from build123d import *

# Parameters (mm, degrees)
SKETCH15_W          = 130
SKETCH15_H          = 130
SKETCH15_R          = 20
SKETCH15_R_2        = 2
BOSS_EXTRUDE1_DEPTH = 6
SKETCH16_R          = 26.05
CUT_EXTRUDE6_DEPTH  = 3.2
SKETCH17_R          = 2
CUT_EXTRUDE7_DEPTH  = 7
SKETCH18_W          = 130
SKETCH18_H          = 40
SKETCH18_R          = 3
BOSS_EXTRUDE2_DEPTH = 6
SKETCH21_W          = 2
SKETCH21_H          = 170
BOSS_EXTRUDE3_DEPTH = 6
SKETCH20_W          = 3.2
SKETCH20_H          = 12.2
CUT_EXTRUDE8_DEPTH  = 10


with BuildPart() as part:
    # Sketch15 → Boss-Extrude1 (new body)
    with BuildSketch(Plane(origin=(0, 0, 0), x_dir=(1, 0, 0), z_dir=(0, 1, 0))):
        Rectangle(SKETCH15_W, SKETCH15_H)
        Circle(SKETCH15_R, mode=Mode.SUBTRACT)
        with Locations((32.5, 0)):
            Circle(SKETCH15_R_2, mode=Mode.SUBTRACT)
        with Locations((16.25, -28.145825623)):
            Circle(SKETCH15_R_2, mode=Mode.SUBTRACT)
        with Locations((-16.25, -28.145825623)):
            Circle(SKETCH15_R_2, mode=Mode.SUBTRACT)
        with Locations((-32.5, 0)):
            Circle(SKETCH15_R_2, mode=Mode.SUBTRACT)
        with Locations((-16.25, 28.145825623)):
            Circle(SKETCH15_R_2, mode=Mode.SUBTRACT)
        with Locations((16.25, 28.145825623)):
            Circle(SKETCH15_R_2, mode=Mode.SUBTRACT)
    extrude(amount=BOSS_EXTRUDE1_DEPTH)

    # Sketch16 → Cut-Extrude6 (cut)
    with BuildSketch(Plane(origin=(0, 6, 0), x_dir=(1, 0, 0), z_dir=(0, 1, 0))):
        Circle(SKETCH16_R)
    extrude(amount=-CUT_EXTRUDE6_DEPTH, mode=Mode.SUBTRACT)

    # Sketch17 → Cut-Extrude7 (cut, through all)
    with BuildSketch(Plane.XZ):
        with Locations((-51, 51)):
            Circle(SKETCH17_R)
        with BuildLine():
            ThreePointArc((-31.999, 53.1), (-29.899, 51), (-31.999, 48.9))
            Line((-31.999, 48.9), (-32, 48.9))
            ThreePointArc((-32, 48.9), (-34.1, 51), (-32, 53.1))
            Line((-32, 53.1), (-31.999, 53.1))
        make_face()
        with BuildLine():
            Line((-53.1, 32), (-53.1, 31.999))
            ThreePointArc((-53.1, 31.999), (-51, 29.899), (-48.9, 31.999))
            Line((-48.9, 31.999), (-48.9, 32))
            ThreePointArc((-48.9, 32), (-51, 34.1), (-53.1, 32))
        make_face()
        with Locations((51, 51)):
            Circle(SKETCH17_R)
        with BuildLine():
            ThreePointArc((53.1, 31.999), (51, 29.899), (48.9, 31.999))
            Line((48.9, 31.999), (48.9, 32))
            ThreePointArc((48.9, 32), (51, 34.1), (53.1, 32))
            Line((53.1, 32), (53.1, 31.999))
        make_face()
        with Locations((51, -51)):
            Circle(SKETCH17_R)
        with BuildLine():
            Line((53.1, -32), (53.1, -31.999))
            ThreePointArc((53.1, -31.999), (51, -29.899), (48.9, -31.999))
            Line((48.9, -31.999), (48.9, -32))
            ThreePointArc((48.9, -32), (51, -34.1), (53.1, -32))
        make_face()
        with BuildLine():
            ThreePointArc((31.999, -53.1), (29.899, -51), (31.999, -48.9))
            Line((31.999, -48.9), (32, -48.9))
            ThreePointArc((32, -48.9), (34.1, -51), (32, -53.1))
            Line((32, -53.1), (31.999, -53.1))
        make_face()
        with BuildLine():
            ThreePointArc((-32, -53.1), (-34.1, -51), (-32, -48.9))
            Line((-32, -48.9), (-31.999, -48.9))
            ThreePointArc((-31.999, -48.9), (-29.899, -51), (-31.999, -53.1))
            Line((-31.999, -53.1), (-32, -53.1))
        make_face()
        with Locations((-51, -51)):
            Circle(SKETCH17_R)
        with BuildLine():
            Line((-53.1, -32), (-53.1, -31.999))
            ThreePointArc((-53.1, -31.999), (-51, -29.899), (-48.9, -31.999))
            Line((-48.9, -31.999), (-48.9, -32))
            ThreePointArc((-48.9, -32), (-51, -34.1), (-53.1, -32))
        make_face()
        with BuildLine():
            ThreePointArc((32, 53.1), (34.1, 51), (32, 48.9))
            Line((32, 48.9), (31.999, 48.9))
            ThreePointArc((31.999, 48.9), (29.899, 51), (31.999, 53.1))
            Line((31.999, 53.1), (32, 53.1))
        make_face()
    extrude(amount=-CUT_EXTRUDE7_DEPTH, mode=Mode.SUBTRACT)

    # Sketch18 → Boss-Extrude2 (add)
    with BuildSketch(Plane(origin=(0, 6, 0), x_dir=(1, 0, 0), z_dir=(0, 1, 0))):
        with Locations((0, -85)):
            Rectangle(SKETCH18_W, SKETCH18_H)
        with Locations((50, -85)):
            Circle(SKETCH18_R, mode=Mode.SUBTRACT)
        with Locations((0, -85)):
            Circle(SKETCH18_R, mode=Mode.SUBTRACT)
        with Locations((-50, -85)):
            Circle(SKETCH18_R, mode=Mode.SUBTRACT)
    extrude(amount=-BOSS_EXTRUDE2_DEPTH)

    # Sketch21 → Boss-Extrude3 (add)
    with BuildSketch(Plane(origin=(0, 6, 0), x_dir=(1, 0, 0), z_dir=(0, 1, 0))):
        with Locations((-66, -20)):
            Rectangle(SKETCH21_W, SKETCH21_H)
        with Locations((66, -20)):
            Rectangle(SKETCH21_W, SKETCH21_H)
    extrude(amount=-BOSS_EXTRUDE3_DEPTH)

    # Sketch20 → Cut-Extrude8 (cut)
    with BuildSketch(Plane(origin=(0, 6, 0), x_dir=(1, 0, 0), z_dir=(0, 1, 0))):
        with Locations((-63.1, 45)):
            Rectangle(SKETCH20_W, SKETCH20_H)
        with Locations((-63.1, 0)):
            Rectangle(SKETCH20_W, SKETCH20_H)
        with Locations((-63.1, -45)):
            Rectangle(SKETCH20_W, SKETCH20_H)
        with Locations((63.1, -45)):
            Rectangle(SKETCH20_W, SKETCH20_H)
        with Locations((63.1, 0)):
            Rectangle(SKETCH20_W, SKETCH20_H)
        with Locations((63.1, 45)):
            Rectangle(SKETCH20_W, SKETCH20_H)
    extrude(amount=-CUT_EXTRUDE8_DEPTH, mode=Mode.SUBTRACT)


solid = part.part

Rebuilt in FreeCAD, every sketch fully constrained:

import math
import FreeCAD as App
import Part
import Sketcher
from FreeCAD import Vector
Q = App.Units.Quantity

doc = App.newDocument("Part")
params = doc.addObject("Spreadsheet::Sheet", "Params")
for row, (alias, value) in enumerate([
    ("sketch1_diameter", "4 mm"),
    ("sketch1_diameter2", "40 mm"),
    ("sketch1_width", "130 mm"),
    ("pad1_length", "6 mm"),
    ("sketch2_diameter", "52.1 mm"),
    ("pocket1_length", "3.2 mm"),
    ("sketch3_diameter", "4 mm"),
    ("sketch3_radius", "2.1 mm"),
    ("sketch4_diameter", "6 mm"),
    ("sketch4_width", "130 mm"),
    ("sketch4_height", "40 mm"),
    ("pad2_length", "6 mm"),
    ("sketch5_width", "2 mm"),
    ("sketch5_height", "170 mm"),
    ("pad3_length", "6 mm"),
    ("sketch6_width", "3.2 mm"),
    ("sketch6_height", "12.2 mm"),
    ("pocket3_length", "10 mm"),
], start=1):
    params.set(f"A{row}", alias)
    params.set(f"B{row}", "=" + value)
    params.setAlias(f"B{row}", alias)

body = doc.addObject("PartDesign::Body", "Body")

# Sketch on XZ plane
sketch1 = doc.addObject("Sketcher::SketchObject", "Sketch")
body.addObject(sketch1)
sketch1.AttachmentSupport = (doc.XZ_Plane, [""])
sketch1.MapMode = "FlatFace"
sketch1.addGeometry([
    Part.LineSegment(Vector(-65, -65, 0), Vector(-65, 65, 0)),  # 0
    Part.LineSegment(Vector(-65, 65, 0), Vector(65, 65, 0)),  # 1
    Part.LineSegment(Vector(65, 65, 0), Vector(65, -65, 0)),  # 2
    Part.LineSegment(Vector(65, -65, 0), Vector(-65, -65, 0)),  # 3
    Part.Circle(Vector(-16.2, 28.1, 0), Vector(0, 0, 1), 2),  # 4
    Part.Circle(Vector(16.2, 28.1, 0), Vector(0, 0, 1), 2),  # 5
    Part.Circle(Vector(-32.5, 0, 0), Vector(0, 0, 1), 2),  # 6
    Part.Circle(Vector(-16.2, -28.1, 0), Vector(0, 0, 1), 2),  # 7
    Part.Circle(Vector(0, 0, 0), Vector(0, 0, 1), 20),  # 8
    Part.Circle(Vector(32.5, 0, 0), Vector(0, 0, 1), 2),  # 9
    Part.Circle(Vector(16.2, -28.1, 0), Vector(0, 0, 1), 2),  # 10
], False)
sketch1.addConstraint([
    Sketcher.Constraint("Coincident", 0, 2, 1, 1),
    Sketcher.Constraint("Coincident", 1, 2, 2, 1),
    Sketcher.Constraint("Coincident", 2, 2, 3, 1),
    Sketcher.Constraint("Coincident", 3, 2, 0, 1),
    Sketcher.Constraint("Vertical", 0),
    Sketcher.Constraint("Horizontal", 1),
    Sketcher.Constraint("Vertical", 2),
    Sketcher.Constraint("Horizontal", 3),
    Sketcher.Constraint("Coincident", 8, 3, -1, 1),
    Sketcher.Constraint("Equal", 4, 5),
    Sketcher.Constraint("Equal", 5, 6),
    Sketcher.Constraint("Equal", 6, 7),
    Sketcher.Constraint("Equal", 7, 9),
    Sketcher.Constraint("Equal", 9, 10),
    Sketcher.Constraint("Symmetric", 5, 3, 7, 3, -1, 1),
    Sketcher.Constraint("Symmetric", 6, 3, 9, 3, -1, 1),
    Sketcher.Constraint("Symmetric", 4, 3, 10, 3, -1, 1),
    Sketcher.Constraint("Symmetric", 0, 2, 2, 2, -1, 1),
    Sketcher.Constraint("Symmetric", 4, 3, 5, 3, -2),
    Sketcher.Constraint("PointOnObject", 6, 3, -1),
    Sketcher.Constraint("Equal", 3, 0),
    Sketcher.Constraint("Diameter", 4, Q("4 mm")),
    Sketcher.Constraint("Diameter", 8, Q("40 mm")),
    Sketcher.Constraint("DistanceX", 1, 1, 1, 2, Q("130 mm")),
    Sketcher.Constraint("DistanceX", 6, 3, 9, 3, Q("65 mm")),
    Sketcher.Constraint("DistanceX", 4, 3, 5, 3, Q("32.5 mm")),
    Sketcher.Constraint("DistanceY", 7, 3, 4, 3, Q("56.291651 mm")),
])
sketch1.setExpression("Constraints[21]", "Params.sketch1_diameter")
sketch1.setExpression("Constraints[22]", "Params.sketch1_diameter2")
sketch1.setExpression("Constraints[23]", "Params.sketch1_width")
pad1 = doc.addObject("PartDesign::Pad", "Pad")
body.addObject(pad1)
pad1.Profile = sketch1
pad1.setExpression("Length", "Params.pad1_length")
pad1.Reversed = True

# Sketch on XZ plane
sketch2 = doc.addObject("Sketcher::SketchObject", "Sketch001")
body.addObject(sketch2)
sketch2.AttachmentSupport = (doc.XZ_Plane, [""])
sketch2.MapMode = "FlatFace"
sketch2.AttachmentOffset = App.Placement(Vector(0, 0, -6), App.Rotation())
sketch2.addGeometry(Part.Circle(Vector(0, 0, 0), Vector(0, 0, 1), 26), False)
sketch2.addConstraint([
    Sketcher.Constraint("Coincident", 0, 3, -1, 1),
    Sketcher.Constraint("Diameter", 0, Q("52.1 mm")),
])
sketch2.setExpression("Constraints[1]", "Params.sketch2_diameter")
pocket1 = doc.addObject("PartDesign::Pocket", "Pocket")
body.addObject(pocket1)
pocket1.Profile = sketch2
pocket1.setExpression("Length", "Params.pocket1_length")
pocket1.Reversed = True

# Sketch on XZ plane
sketch3 = doc.addObject("Sketcher::SketchObject", "Sketch002")
body.addObject(sketch3)
sketch3.AttachmentSupport = (doc.XZ_Plane, [""])
sketch3.MapMode = "FlatFace"
sketch3.addGeometry([
    Part.Circle(Vector(-51, 51, 0), Vector(0, 0, 1), 2),  # 0
    Part.ArcOfCircle(Part.Circle(Vector(-31.999, 51, 0), Vector(0, 0, 1), 2.1), math.radians(-90), math.radians(90)),  # 1
    Part.LineSegment(Vector(-31.999, 53.1, 0), Vector(-32, 53.1, 0)),  # 2
    Part.ArcOfCircle(Part.Circle(Vector(-32, 51, 0), Vector(0, 0, 1), 2.1), math.radians(90), math.radians(270)),  # 3
    Part.LineSegment(Vector(-32, 48.9, 0), Vector(-31.999, 48.9, 0)),  # 4
    Part.LineSegment(Vector(-53.1, 32, 0), Vector(-53.1, 31.999, 0)),  # 5
    Part.ArcOfCircle(Part.Circle(Vector(-51, 31.999, 0), Vector(0, 0, 1), 2.1), math.radians(180), math.radians(360)),  # 6
    Part.LineSegment(Vector(-48.9, 31.999, 0), Vector(-48.9, 32, 0)),  # 7
    Part.ArcOfCircle(Part.Circle(Vector(-51, 32, 0), Vector(0, 0, 1), 2.1), math.radians(0), math.radians(180)),  # 8
    Part.Circle(Vector(51, 51, 0), Vector(0, 0, 1), 2),  # 9
    Part.ArcOfCircle(Part.Circle(Vector(51, 31.999, 0), Vector(0, 0, 1), 2.1), math.radians(180), math.radians(360)),  # 10
    Part.LineSegment(Vector(53.1, 31.999, 0), Vector(53.1, 32, 0)),  # 11
    Part.ArcOfCircle(Part.Circle(Vector(51, 32, 0), Vector(0, 0, 1), 2.1), math.radians(0), math.radians(180)),  # 12
    Part.LineSegment(Vector(48.9, 32, 0), Vector(48.9, 31.999, 0)),  # 13
    Part.Circle(Vector(51, -51, 0), Vector(0, 0, 1), 2),  # 14
    Part.LineSegment(Vector(53.1, -32, 0), Vector(53.1, -31.999, 0)),  # 15
    Part.ArcOfCircle(Part.Circle(Vector(51, -31.999, 0), Vector(0, 0, 1), 2.1), math.radians(0), math.radians(180)),  # 16
    Part.LineSegment(Vector(48.9, -31.999, 0), Vector(48.9, -32, 0)),  # 17
    Part.ArcOfCircle(Part.Circle(Vector(51, -32, 0), Vector(0, 0, 1), 2.1), math.radians(180), math.radians(360)),  # 18
    Part.ArcOfCircle(Part.Circle(Vector(31.999, -51, 0), Vector(0, 0, 1), 2.1), math.radians(90), math.radians(270)),  # 19
    Part.LineSegment(Vector(31.999, -53.1, 0), Vector(32, -53.1, 0)),  # 20
    Part.ArcOfCircle(Part.Circle(Vector(32, -51, 0), Vector(0, 0, 1), 2.1), math.radians(-90), math.radians(90)),  # 21
    Part.LineSegment(Vector(32, -48.9, 0), Vector(31.999, -48.9, 0)),  # 22
    Part.ArcOfCircle(Part.Circle(Vector(-32, -51, 0), Vector(0, 0, 1), 2.1), math.radians(90), math.radians(270)),  # 23
    Part.LineSegment(Vector(-32, -53.1, 0), Vector(-31.999, -53.1, 0)),  # 24
    Part.ArcOfCircle(Part.Circle(Vector(-31.999, -51, 0), Vector(0, 0, 1), 2.1), math.radians(-90), math.radians(90)),  # 25
    Part.LineSegment(Vector(-31.999, -48.9, 0), Vector(-32, -48.9, 0)),  # 26
    Part.Circle(Vector(-51, -51, 0), Vector(0, 0, 1), 2),  # 27
    Part.LineSegment(Vector(-53.1, -31.999, 0), Vector(-53.1, -32, 0)),  # 28
    Part.ArcOfCircle(Part.Circle(Vector(-51, -32, 0), Vector(0, 0, 1), 2.1), math.radians(180), math.radians(360)),  # 29
    Part.LineSegment(Vector(-48.9, -32, 0), Vector(-48.9, -31.999, 0)),  # 30
    Part.ArcOfCircle(Part.Circle(Vector(-51, -31.999, 0), Vector(0, 0, 1), 2.1), math.radians(0), math.radians(180)),  # 31
    Part.ArcOfCircle(Part.Circle(Vector(32, 51, 0), Vector(0, 0, 1), 2.1), math.radians(-90), math.radians(90)),  # 32
    Part.LineSegment(Vector(32, 53.1, 0), Vector(31.999, 53.1, 0)),  # 33
    Part.ArcOfCircle(Part.Circle(Vector(31.999, 51, 0), Vector(0, 0, 1), 2.1), math.radians(90), math.radians(270)),  # 34
    Part.LineSegment(Vector(31.999, 48.9, 0), Vector(32, 48.9, 0)),  # 35
], False)
sketch3.addConstraint([
    Sketcher.Constraint("Tangent", 1, 2, 2, 1),
    Sketcher.Constraint("Coincident", 2, 2, 3, 1),
    Sketcher.Constraint("Tangent", 3, 2, 4, 1),
    Sketcher.Constraint("Coincident", 4, 2, 1, 1),
    Sketcher.Constraint("Tangent", 5, 2, 6, 1),
    Sketcher.Constraint("Tangent", 6, 2, 7, 1),
    Sketcher.Constraint("Coincident", 7, 2, 8, 1),
    Sketcher.Constraint("Coincident", 8, 2, 5, 1),
    Sketcher.Constraint("Tangent", 10, 2, 11, 1),
    Sketcher.Constraint("Coincident", 11, 2, 12, 1),
    Sketcher.Constraint("Tangent", 12, 2, 13, 1),
    Sketcher.Constraint("Coincident", 13, 2, 10, 1),
    Sketcher.Constraint("Tangent", 15, 2, 16, 1),
    Sketcher.Constraint("Tangent", 16, 2, 17, 1),
    Sketcher.Constraint("Coincident", 17, 2, 18, 1),
    Sketcher.Constraint("Coincident", 18, 2, 15, 1),
    Sketcher.Constraint("Tangent", 19, 2, 20, 1),
    Sketcher.Constraint("Coincident", 20, 2, 21, 1),
    Sketcher.Constraint("Tangent", 21, 2, 22, 1),
    Sketcher.Constraint("Coincident", 22, 2, 19, 1),
    Sketcher.Constraint("Tangent", 23, 2, 24, 1),
    Sketcher.Constraint("Coincident", 24, 2, 25, 1),
    Sketcher.Constraint("Tangent", 25, 2, 26, 1),
    Sketcher.Constraint("Coincident", 26, 2, 23, 1),
    Sketcher.Constraint("Tangent", 28, 2, 29, 1),
    Sketcher.Constraint("Tangent", 29, 2, 30, 1),
    Sketcher.Constraint("Coincident", 30, 2, 31, 1),
    Sketcher.Constraint("Coincident", 31, 2, 28, 1),
    Sketcher.Constraint("Tangent", 32, 2, 33, 1),
    Sketcher.Constraint("Coincident", 33, 2, 34, 1),
    Sketcher.Constraint("Tangent", 34, 2, 35, 1),
    Sketcher.Constraint("Coincident", 35, 2, 32, 1),
    Sketcher.Constraint("Equal", 3, 6),
    Sketcher.Constraint("Equal", 0, 9),
    Sketcher.Constraint("Equal", 8, 10),
    Sketcher.Constraint("Equal", 9, 14),
    Sketcher.Constraint("Equal", 12, 16),
    Sketcher.Constraint("Equal", 18, 19),
    Sketcher.Constraint("Equal", 21, 23),
    Sketcher.Constraint("Equal", 14, 27),
    Sketcher.Constraint("Equal", 25, 29),
    Sketcher.Constraint("Equal", 31, 32),
    Sketcher.Constraint("Symmetric", 0, 3, 14, 3, -1, 1),
    Sketcher.Constraint("Symmetric", 6, 3, 16, 3, -1, 1),
    Sketcher.Constraint("Symmetric", 1, 3, 19, 3, -1, 1),
    Sketcher.Constraint("Symmetric", 9, 3, 27, 3, -1, 1),
    Sketcher.Constraint("Symmetric", 12, 3, 29, 3, -1, 1),
    Sketcher.Constraint("Symmetric", 23, 3, 32, 3, -1, 1),
    Sketcher.Constraint("Symmetric", 0, 3, 9, 3, -2),
    Sketcher.Constraint("Symmetric", 6, 3, 10, 3, -2),
    Sketcher.Constraint("Symmetric", 21, 3, 23, 3, -2),
    Sketcher.Constraint("Horizontal", 0, 3, 1, 3),
    Sketcher.Constraint("Horizontal", 8, 3, 12, 3),
    Sketcher.Constraint("Horizontal", 18, 3, 29, 3),
    Sketcher.Constraint("Horizontal", 16, 3, 31, 3),
    Sketcher.Constraint("Horizontal", 10, 3, 5, 2),
    Sketcher.Constraint("Horizontal", 5, 2, 6, 2),
    Sketcher.Constraint("Horizontal", 12, 3, 7, 2),
    Sketcher.Constraint("Horizontal", 7, 2, 8, 2),
    Sketcher.Constraint("Horizontal", 6, 2, 10, 2),
    Sketcher.Constraint("Horizontal", 8, 2, 11, 2),
    Sketcher.Constraint("Horizontal", 11, 2, 12, 2),
    Sketcher.Constraint("Horizontal", 10, 2, 13, 2),
    Sketcher.Constraint("Horizontal", 31, 3, 15, 2),
    Sketcher.Constraint("Horizontal", 15, 2, 16, 2),
    Sketcher.Constraint("Horizontal", 29, 3, 17, 2),
    Sketcher.Constraint("Horizontal", 17, 2, 18, 2),
    Sketcher.Constraint("Horizontal", 18, 2, 28, 2),
    Sketcher.Constraint("Horizontal", 28, 2, 29, 2),
    Sketcher.Constraint("Horizontal", 16, 2, 30, 2),
    Sketcher.Constraint("Horizontal", 30, 2, 31, 2),
    Sketcher.Constraint("Vertical", 0, 3, 6, 3),
    Sketcher.Constraint("Vertical", 3, 3, 23, 3),
    Sketcher.Constraint("Vertical", 1, 3, 25, 3),
    Sketcher.Constraint("Vertical", 19, 3, 34, 3),
    Sketcher.Constraint("Vertical", 25, 3, 1, 2),
    Sketcher.Constraint("Vertical", 23, 3, 2, 2),
    Sketcher.Constraint("Vertical", 2, 2, 3, 2),
    Sketcher.Constraint("Vertical", 1, 2, 4, 2),
    Sketcher.Constraint("Vertical", 34, 3, 19, 2),
    Sketcher.Constraint("Vertical", 32, 3, 20, 2),
    Sketcher.Constraint("Vertical", 20, 2, 21, 2),
    Sketcher.Constraint("Vertical", 19, 2, 22, 2),
    Sketcher.Constraint("Vertical", 3, 2, 23, 2),
    Sketcher.Constraint("Vertical", 4, 2, 24, 2),
    Sketcher.Constraint("Vertical", 24, 2, 25, 2),
    Sketcher.Constraint("Vertical", 23, 2, 26, 2),
    Sketcher.Constraint("Vertical", 21, 2, 32, 2),
    Sketcher.Constraint("Vertical", 22, 2, 33, 2),
    Sketcher.Constraint("Vertical", 33, 2, 34, 2),
    Sketcher.Constraint("Vertical", 32, 2, 35, 2),
    Sketcher.Constraint("Equal", 35, 5),
    Sketcher.Constraint("Diameter", 0, Q("4 mm")),
    Sketcher.Constraint("Radius", 1, Q("2.1 mm")),
    Sketcher.Constraint("DistanceX", 0, 3, -1, 1, Q("51 mm")),
    Sketcher.Constraint("DistanceY", -1, 1, 0, 3, Q("51 mm")),
    Sketcher.Constraint("DistanceX", 3, 3, -1, 1, Q("32 mm")),
    Sketcher.Constraint("DistanceY", -1, 1, 8, 3, Q("32 mm")),
    Sketcher.Constraint("DistanceX", 2, 2, 2, 1, Q("0.001 mm")),
])
sketch3.setExpression("Constraints[92]", "Params.sketch3_diameter")
sketch3.setExpression("Constraints[93]", "Params.sketch3_radius")
pocket2 = doc.addObject("PartDesign::Pocket", "Pocket001")
body.addObject(pocket2)
pocket2.Profile = sketch3
pocket2.Type = "ThroughAll"

# Sketch on XZ plane
sketch4 = doc.addObject("Sketcher::SketchObject", "Sketch003")
body.addObject(sketch4)
sketch4.AttachmentSupport = (doc.XZ_Plane, [""])
sketch4.MapMode = "FlatFace"
sketch4.AttachmentOffset = App.Placement(Vector(0, 0, -6), App.Rotation())
sketch4.addGeometry([
    Part.LineSegment(Vector(-65, 65, 0), Vector(-65, 105, 0)),  # 0
    Part.LineSegment(Vector(-65, 105, 0), Vector(65, 105, 0)),  # 1
    Part.LineSegment(Vector(65, 105, 0), Vector(65, 65, 0)),  # 2
    Part.LineSegment(Vector(65, 65, 0), Vector(-65, 65, 0)),  # 3
    Part.Circle(Vector(-50, 85, 0), Vector(0, 0, 1), 3),  # 4
    Part.Circle(Vector(0, 85, 0), Vector(0, 0, 1), 3),  # 5
    Part.Circle(Vector(50, 85, 0), Vector(0, 0, 1), 3),  # 6
], False)
sketch4.addConstraint([
    Sketcher.Constraint("Coincident", 0, 2, 1, 1),
    Sketcher.Constraint("Coincident", 1, 2, 2, 1),
    Sketcher.Constraint("Coincident", 2, 2, 3, 1),
    Sketcher.Constraint("Coincident", 3, 2, 0, 1),
    Sketcher.Constraint("Vertical", 0),
    Sketcher.Constraint("Horizontal", 1),
    Sketcher.Constraint("Vertical", 2),
    Sketcher.Constraint("Horizontal", 3),
    Sketcher.Constraint("Equal", 4, 5),
    Sketcher.Constraint("Equal", 5, 6),
    Sketcher.Constraint("Symmetric", 4, 3, 6, 3, -2),
    Sketcher.Constraint("PointOnObject", 5, 3, -2),
    Sketcher.Constraint("Horizontal", 4, 3, 5, 3),
    Sketcher.Constraint("Diameter", 4, Q("6 mm")),
    Sketcher.Constraint("DistanceX", 1, 1, 1, 2, Q("130 mm")),
    Sketcher.Constraint("DistanceY", 0, 1, 0, 2, Q("40 mm")),
    Sketcher.Constraint("DistanceX", 4, 3, -1, 1, Q("50 mm")),
    Sketcher.Constraint("DistanceY", -1, 1, 4, 3, Q("85 mm")),
    Sketcher.Constraint("DistanceX", 0, 2, -1, 1, Q("65 mm")),
    Sketcher.Constraint("DistanceY", -1, 1, 0, 2, Q("105 mm")),
])
sketch4.setExpression("Constraints[13]", "Params.sketch4_diameter")
sketch4.setExpression("Constraints[14]", "Params.sketch4_width")
sketch4.setExpression("Constraints[15]", "Params.sketch4_height")
pad2 = doc.addObject("PartDesign::Pad", "Pad001")
body.addObject(pad2)
pad2.Profile = sketch4
pad2.setExpression("Length", "Params.pad2_length")

# Sketch on XZ plane
sketch5 = doc.addObject("Sketcher::SketchObject", "Sketch004")
body.addObject(sketch5)
sketch5.AttachmentSupport = (doc.XZ_Plane, [""])
sketch5.MapMode = "FlatFace"
sketch5.AttachmentOffset = App.Placement(Vector(0, 0, -6), App.Rotation())
sketch5.addGeometry([
    Part.LineSegment(Vector(-67, -65, 0), Vector(-67, 105, 0)),  # 0
    Part.LineSegment(Vector(-67, 105, 0), Vector(-65, 105, 0)),  # 1
    Part.LineSegment(Vector(-65, 105, 0), Vector(-65, -65, 0)),  # 2
    Part.LineSegment(Vector(-65, -65, 0), Vector(-67, -65, 0)),  # 3
    Part.LineSegment(Vector(65, -65, 0), Vector(65, 105, 0)),  # 4
    Part.LineSegment(Vector(65, 105, 0), Vector(67, 105, 0)),  # 5
    Part.LineSegment(Vector(67, 105, 0), Vector(67, -65, 0)),  # 6
    Part.LineSegment(Vector(67, -65, 0), Vector(65, -65, 0)),  # 7
], False)
sketch5.addConstraint([
    Sketcher.Constraint("Coincident", 0, 2, 1, 1),
    Sketcher.Constraint("Coincident", 1, 2, 2, 1),
    Sketcher.Constraint("Coincident", 2, 2, 3, 1),
    Sketcher.Constraint("Coincident", 3, 2, 0, 1),
    Sketcher.Constraint("Coincident", 4, 2, 5, 1),
    Sketcher.Constraint("Coincident", 5, 2, 6, 1),
    Sketcher.Constraint("Coincident", 6, 2, 7, 1),
    Sketcher.Constraint("Coincident", 7, 2, 4, 1),
    Sketcher.Constraint("Vertical", 0),
    Sketcher.Constraint("Horizontal", 1),
    Sketcher.Constraint("Vertical", 2),
    Sketcher.Constraint("Horizontal", 3),
    Sketcher.Constraint("Vertical", 4),
    Sketcher.Constraint("Horizontal", 5),
    Sketcher.Constraint("Vertical", 6),
    Sketcher.Constraint("Horizontal", 7),
    Sketcher.Constraint("Symmetric", 1, 2, 4, 2, -2),
    Sketcher.Constraint("Symmetric", 3, 2, 6, 2, -2),
    Sketcher.Constraint("DistanceX", 1, 1, 1, 2, Q("2 mm")),
    Sketcher.Constraint("DistanceY", 0, 1, 0, 2, Q("170 mm")),
    Sketcher.Constraint("DistanceX", 0, 2, -1, 1, Q("67 mm")),
    Sketcher.Constraint("DistanceY", -1, 1, 0, 2, Q("105 mm")),
])
sketch5.setExpression("Constraints[18]", "Params.sketch5_width")
sketch5.setExpression("Constraints[19]", "Params.sketch5_height")
pad3 = doc.addObject("PartDesign::Pad", "Pad002")
body.addObject(pad3)
pad3.Profile = sketch5
pad3.setExpression("Length", "Params.pad3_length")

# Sketch on XZ plane
sketch6 = doc.addObject("Sketcher::SketchObject", "Sketch005")
body.addObject(sketch6)
sketch6.AttachmentSupport = (doc.XZ_Plane, [""])
sketch6.MapMode = "FlatFace"
sketch6.AttachmentOffset = App.Placement(Vector(0, 0, -6), App.Rotation())
sketch6.addGeometry([
    Part.LineSegment(Vector(-64.7, -51.1, 0), Vector(-64.7, -38.9, 0)),  # 0
    Part.LineSegment(Vector(-64.7, -38.9, 0), Vector(-61.5, -38.9, 0)),  # 1
    Part.LineSegment(Vector(-61.5, -38.9, 0), Vector(-61.5, -51.1, 0)),  # 2
    Part.LineSegment(Vector(-61.5, -51.1, 0), Vector(-64.7, -51.1, 0)),  # 3
    Part.LineSegment(Vector(-64.7, -6.1, 0), Vector(-64.7, 6.1, 0)),  # 4
    Part.LineSegment(Vector(-64.7, 6.1, 0), Vector(-61.5, 6.1, 0)),  # 5
    Part.LineSegment(Vector(-61.5, 6.1, 0), Vector(-61.5, -6.1, 0)),  # 6
    Part.LineSegment(Vector(-61.5, -6.1, 0), Vector(-64.7, -6.1, 0)),  # 7
    Part.LineSegment(Vector(-64.7, 38.9, 0), Vector(-64.7, 51.1, 0)),  # 8
    Part.LineSegment(Vector(-64.7, 51.1, 0), Vector(-61.5, 51.1, 0)),  # 9
    Part.LineSegment(Vector(-61.5, 51.1, 0), Vector(-61.5, 38.9, 0)),  # 10
    Part.LineSegment(Vector(-61.5, 38.9, 0), Vector(-64.7, 38.9, 0)),  # 11
    Part.LineSegment(Vector(61.5, 38.9, 0), Vector(61.5, 51.1, 0)),  # 12
    Part.LineSegment(Vector(61.5, 51.1, 0), Vector(64.7, 51.1, 0)),  # 13
    Part.LineSegment(Vector(64.7, 51.1, 0), Vector(64.7, 38.9, 0)),  # 14
    Part.LineSegment(Vector(64.7, 38.9, 0), Vector(61.5, 38.9, 0)),  # 15
    Part.LineSegment(Vector(61.5, -6.1, 0), Vector(61.5, 6.1, 0)),  # 16
    Part.LineSegment(Vector(61.5, 6.1, 0), Vector(64.7, 6.1, 0)),  # 17
    Part.LineSegment(Vector(64.7, 6.1, 0), Vector(64.7, -6.1, 0)),  # 18
    Part.LineSegment(Vector(64.7, -6.1, 0), Vector(61.5, -6.1, 0)),  # 19
    Part.LineSegment(Vector(61.5, -51.1, 0), Vector(61.5, -38.9, 0)),  # 20
    Part.LineSegment(Vector(61.5, -38.9, 0), Vector(64.7, -38.9, 0)),  # 21
    Part.LineSegment(Vector(64.7, -38.9, 0), Vector(64.7, -51.1, 0)),  # 22
    Part.LineSegment(Vector(64.7, -51.1, 0), Vector(61.5, -51.1, 0)),  # 23
], False)
sketch6.addConstraint([
    Sketcher.Constraint("Coincident", 0, 2, 1, 1),
    Sketcher.Constraint("Coincident", 1, 2, 2, 1),
    Sketcher.Constraint("Coincident", 2, 2, 3, 1),
    Sketcher.Constraint("Coincident", 3, 2, 0, 1),
    Sketcher.Constraint("Coincident", 4, 2, 5, 1),
    Sketcher.Constraint("Coincident", 5, 2, 6, 1),
    Sketcher.Constraint("Coincident", 6, 2, 7, 1),
    Sketcher.Constraint("Coincident", 7, 2, 4, 1),
    Sketcher.Constraint("Coincident", 8, 2, 9, 1),
    Sketcher.Constraint("Coincident", 9, 2, 10, 1),
    Sketcher.Constraint("Coincident", 10, 2, 11, 1),
    Sketcher.Constraint("Coincident", 11, 2, 8, 1),
    Sketcher.Constraint("Coincident", 12, 2, 13, 1),
    Sketcher.Constraint("Coincident", 13, 2, 14, 1),
    Sketcher.Constraint("Coincident", 14, 2, 15, 1),
    Sketcher.Constraint("Coincident", 15, 2, 12, 1),
    Sketcher.Constraint("Coincident", 16, 2, 17, 1),
    Sketcher.Constraint("Coincident", 17, 2, 18, 1),
    Sketcher.Constraint("Coincident", 18, 2, 19, 1),
    Sketcher.Constraint("Coincident", 19, 2, 16, 1),
    Sketcher.Constraint("Coincident", 20, 2, 21, 1),
    Sketcher.Constraint("Coincident", 21, 2, 22, 1),
    Sketcher.Constraint("Coincident", 22, 2, 23, 1),
    Sketcher.Constraint("Coincident", 23, 2, 20, 1),
    Sketcher.Constraint("Vertical", 0),
    Sketcher.Constraint("Horizontal", 1),
    Sketcher.Constraint("Vertical", 2),
    Sketcher.Constraint("Horizontal", 3),
    Sketcher.Constraint("Vertical", 4),
    Sketcher.Constraint("Horizontal", 5),
    Sketcher.Constraint("Vertical", 6),
    Sketcher.Constraint("Horizontal", 7),
    Sketcher.Constraint("Vertical", 8),
    Sketcher.Constraint("Horizontal", 9),
    Sketcher.Constraint("Vertical", 10),
    Sketcher.Constraint("Horizontal", 11),
    Sketcher.Constraint("Vertical", 12),
    Sketcher.Constraint("Horizontal", 13),
    Sketcher.Constraint("Vertical", 14),
    Sketcher.Constraint("Horizontal", 15),
    Sketcher.Constraint("Vertical", 16),
    Sketcher.Constraint("Horizontal", 17),
    Sketcher.Constraint("Vertical", 18),
    Sketcher.Constraint("Horizontal", 19),
    Sketcher.Constraint("Vertical", 20),
    Sketcher.Constraint("Horizontal", 21),
    Sketcher.Constraint("Vertical", 22),
    Sketcher.Constraint("Horizontal", 23),
    Sketcher.Constraint("Symmetric", 2, 2, 12, 2, -1, 1),
    Sketcher.Constraint("Symmetric", 0, 2, 14, 2, -1, 1),
    Sketcher.Constraint("Symmetric", 6, 2, 16, 2, -1, 1),
    Sketcher.Constraint("Symmetric", 4, 2, 18, 2, -1, 1),
    Sketcher.Constraint("Symmetric", 10, 2, 20, 2, -1, 1),
    Sketcher.Constraint("Symmetric", 8, 2, 22, 2, -1, 1),
    Sketcher.Constraint("Symmetric", 9, 2, 12, 2, -2),
    Sketcher.Constraint("Symmetric", 11, 2, 14, 2, -2),
    Sketcher.Constraint("Horizontal", 5, 2, 16, 2),
    Sketcher.Constraint("Vertical", 3, 2, 4, 2),
    Sketcher.Constraint("Vertical", 2, 2, 5, 2),
    Sketcher.Constraint("Equal", 2, 4),
    Sketcher.Constraint("DistanceX", 1, 1, 1, 2, Q("3.2 mm")),
    Sketcher.Constraint("DistanceY", 0, 1, 0, 2, Q("12.2 mm")),
    Sketcher.Constraint("DistanceY", 0, 2, 4, 2, Q("45 mm")),
    Sketcher.Constraint("DistanceX", 9, 2, 12, 2, Q("123 mm")),
])
sketch6.setExpression("Constraints[60]", "Params.sketch6_width")
sketch6.setExpression("Constraints[61]", "Params.sketch6_height")
pocket3 = doc.addObject("PartDesign::Pocket", "Pocket002")
body.addObject(pocket3)
pocket3.Profile = sketch6
pocket3.setExpression("Length", "Params.pocket3_length")
pocket3.Reversed = True

doc.recompute()
